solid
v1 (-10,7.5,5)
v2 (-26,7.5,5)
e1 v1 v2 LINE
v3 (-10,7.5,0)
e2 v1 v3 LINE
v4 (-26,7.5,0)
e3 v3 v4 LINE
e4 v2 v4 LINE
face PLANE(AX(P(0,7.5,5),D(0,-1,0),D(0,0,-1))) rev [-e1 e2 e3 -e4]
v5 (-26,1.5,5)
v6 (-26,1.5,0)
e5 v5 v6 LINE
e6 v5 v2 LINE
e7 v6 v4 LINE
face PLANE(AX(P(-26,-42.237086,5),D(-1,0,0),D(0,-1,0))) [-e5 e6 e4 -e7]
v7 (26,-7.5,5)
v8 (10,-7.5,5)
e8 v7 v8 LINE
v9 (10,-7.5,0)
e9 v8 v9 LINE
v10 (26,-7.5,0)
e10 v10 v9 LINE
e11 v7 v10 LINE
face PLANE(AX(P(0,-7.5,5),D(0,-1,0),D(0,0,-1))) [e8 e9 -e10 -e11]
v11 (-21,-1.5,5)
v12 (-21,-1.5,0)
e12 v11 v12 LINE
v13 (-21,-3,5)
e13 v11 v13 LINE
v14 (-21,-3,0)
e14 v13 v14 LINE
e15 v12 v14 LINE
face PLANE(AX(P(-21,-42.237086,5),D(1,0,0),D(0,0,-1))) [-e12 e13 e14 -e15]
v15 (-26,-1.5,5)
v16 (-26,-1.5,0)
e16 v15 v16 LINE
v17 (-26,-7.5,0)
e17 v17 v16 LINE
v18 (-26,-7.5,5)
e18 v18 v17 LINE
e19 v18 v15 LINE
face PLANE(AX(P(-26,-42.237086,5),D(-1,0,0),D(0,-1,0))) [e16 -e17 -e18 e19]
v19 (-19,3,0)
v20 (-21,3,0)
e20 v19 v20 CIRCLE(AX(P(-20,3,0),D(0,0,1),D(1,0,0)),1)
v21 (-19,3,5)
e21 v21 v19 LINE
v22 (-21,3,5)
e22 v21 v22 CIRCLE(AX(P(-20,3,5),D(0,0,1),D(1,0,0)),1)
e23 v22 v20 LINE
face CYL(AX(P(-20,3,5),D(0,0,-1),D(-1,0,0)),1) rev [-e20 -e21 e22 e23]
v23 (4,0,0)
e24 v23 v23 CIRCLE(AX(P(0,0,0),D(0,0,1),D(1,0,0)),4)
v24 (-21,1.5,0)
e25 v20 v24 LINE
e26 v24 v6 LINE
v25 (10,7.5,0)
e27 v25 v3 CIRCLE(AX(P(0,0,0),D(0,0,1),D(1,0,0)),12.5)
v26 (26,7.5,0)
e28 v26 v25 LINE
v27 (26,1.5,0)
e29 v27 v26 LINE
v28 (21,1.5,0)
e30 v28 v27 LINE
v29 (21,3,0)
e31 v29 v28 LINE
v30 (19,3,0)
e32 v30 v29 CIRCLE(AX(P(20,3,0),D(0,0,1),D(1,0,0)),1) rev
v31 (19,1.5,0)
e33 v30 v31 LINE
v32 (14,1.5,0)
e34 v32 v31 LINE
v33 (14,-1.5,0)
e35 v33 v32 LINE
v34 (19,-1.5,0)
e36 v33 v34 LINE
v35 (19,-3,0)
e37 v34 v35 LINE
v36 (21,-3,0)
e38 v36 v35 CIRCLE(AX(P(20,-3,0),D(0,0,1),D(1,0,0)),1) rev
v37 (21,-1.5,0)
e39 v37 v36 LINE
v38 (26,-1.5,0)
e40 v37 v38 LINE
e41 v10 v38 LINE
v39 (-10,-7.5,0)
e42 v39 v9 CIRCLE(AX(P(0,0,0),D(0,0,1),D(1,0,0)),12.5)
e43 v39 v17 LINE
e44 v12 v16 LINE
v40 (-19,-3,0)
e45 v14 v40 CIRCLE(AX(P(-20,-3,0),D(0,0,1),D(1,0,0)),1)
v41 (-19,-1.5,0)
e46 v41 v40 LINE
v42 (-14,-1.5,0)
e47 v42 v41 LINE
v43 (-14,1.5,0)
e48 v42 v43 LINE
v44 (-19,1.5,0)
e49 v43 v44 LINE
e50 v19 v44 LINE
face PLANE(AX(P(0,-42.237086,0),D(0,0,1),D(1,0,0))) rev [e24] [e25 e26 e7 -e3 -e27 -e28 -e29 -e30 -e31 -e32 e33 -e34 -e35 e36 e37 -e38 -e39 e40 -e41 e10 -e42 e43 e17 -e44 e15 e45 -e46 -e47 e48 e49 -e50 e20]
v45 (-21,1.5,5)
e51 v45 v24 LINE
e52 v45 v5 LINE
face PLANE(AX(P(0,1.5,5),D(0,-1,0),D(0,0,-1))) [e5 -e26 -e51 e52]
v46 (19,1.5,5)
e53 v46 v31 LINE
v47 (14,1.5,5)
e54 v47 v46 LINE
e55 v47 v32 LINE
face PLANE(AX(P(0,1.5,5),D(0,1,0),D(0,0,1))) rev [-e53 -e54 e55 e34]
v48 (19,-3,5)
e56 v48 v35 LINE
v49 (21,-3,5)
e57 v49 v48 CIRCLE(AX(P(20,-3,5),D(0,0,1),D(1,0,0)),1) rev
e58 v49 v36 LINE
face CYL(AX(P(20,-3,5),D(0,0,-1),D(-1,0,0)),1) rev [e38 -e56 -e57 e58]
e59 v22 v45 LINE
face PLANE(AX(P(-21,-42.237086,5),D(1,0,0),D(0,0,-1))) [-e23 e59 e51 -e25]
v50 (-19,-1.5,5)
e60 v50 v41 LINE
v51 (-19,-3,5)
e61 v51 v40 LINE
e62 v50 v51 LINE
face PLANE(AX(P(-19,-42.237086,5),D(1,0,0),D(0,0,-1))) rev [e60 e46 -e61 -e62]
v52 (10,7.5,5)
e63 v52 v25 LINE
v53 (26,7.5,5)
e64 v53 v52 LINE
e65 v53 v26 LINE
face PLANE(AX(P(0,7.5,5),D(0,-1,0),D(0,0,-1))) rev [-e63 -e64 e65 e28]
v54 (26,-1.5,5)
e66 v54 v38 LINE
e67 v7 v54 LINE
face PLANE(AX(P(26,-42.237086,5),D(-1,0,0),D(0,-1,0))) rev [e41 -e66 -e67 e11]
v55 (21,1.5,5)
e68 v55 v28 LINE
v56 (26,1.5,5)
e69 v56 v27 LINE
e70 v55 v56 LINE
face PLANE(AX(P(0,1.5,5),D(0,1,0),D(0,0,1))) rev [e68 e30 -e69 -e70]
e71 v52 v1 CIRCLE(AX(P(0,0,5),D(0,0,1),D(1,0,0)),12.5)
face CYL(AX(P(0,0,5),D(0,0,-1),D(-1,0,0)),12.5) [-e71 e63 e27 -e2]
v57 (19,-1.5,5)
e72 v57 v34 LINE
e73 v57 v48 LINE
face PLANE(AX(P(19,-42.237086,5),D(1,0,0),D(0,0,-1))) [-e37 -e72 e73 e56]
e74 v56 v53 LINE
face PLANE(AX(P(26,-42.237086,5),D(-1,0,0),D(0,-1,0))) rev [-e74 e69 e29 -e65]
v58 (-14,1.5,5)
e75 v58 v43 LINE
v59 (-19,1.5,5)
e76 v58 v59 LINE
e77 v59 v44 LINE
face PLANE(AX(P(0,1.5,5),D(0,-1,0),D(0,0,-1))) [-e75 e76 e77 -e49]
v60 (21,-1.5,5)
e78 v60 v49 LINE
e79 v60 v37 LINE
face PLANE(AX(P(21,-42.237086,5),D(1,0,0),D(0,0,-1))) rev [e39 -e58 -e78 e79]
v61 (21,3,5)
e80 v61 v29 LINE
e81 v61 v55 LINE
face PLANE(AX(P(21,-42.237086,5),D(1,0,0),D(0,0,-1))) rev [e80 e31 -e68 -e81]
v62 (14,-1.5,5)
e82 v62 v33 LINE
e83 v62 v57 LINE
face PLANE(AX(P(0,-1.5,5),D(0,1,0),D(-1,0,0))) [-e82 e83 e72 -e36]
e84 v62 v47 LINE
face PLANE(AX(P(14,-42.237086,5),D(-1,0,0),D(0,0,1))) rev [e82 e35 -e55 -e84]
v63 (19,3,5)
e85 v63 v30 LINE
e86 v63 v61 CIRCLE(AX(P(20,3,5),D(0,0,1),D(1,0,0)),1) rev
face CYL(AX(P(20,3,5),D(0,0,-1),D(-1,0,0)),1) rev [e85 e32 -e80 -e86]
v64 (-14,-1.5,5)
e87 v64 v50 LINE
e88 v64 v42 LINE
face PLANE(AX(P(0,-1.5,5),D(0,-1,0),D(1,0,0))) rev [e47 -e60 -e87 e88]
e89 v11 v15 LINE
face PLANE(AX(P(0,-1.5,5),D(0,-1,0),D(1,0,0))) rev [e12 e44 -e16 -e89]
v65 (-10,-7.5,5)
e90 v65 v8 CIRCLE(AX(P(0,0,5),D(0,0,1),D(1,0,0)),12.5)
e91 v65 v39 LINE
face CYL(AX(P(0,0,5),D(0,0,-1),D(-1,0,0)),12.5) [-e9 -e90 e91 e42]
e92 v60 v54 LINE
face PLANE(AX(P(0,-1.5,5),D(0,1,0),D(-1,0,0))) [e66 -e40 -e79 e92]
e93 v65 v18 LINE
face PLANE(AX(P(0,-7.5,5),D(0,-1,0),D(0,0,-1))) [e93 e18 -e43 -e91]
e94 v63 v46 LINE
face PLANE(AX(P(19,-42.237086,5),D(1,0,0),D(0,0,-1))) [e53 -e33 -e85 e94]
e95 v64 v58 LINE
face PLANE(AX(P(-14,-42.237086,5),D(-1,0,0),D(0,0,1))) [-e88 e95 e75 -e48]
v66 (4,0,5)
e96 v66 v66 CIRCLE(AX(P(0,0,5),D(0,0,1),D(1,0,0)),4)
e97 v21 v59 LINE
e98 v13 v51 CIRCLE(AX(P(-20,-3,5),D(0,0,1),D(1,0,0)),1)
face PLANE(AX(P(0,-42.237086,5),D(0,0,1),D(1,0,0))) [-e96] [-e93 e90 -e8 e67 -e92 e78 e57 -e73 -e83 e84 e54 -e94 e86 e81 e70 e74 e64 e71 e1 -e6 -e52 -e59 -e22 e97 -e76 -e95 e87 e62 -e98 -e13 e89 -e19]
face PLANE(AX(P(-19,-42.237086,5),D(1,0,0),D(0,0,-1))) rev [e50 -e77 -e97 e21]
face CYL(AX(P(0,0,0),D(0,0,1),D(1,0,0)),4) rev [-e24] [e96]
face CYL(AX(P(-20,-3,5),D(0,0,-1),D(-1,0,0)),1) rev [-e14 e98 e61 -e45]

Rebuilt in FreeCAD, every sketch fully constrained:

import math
import FreeCAD as App
import Part
import Sketcher

V = App.Vector

doc = App.newDocument("Part")
params = doc.addObject("Spreadsheet::Sheet", "Params")
for row, (alias, value) in enumerate([
    ("sketch1_radius", "1 mm"),
    ("sketch1_radius2", "12.5 mm"),
    ("sketch1_width", "16 mm"),
    ("sketch1_width2", "5 mm"),
    ("sketch1_height", "6 mm"),
    ("pad1_length", "5 mm"),
    ("sketch2_diameter", "8 mm"),
    ("pocket1_length", "5 mm"),
], start=1):
    params.set(f"A{row}", alias)
    params.set(f"B{row}", "=" + value)
    params.setAlias(f"B{row}", alias)

body = doc.addObject("PartDesign::Body", "Body")

sketch1 = body.newObject("Sketcher::SketchObject", "Sketch")
sketch1.AttachmentSupport = (doc.getObject("XY_Plane"), [""])
sketch1.MapMode = "FlatFace"
sketch1.addGeometry([
    Part.ArcOfCircle(Part.Circle(V(0, 0, 0), V(0, 0, 1), 12.5), math.radians(37), math.radians(143)),
    Part.LineSegment(V(-10, 7.5, 0), V(-26, 7.5, 0)),
    Part.LineSegment(V(-26, 7.5, 0), V(-26, 1.5, 0)),
    Part.LineSegment(V(-26, 1.5, 0), V(-21, 1.5, 0)),
    Part.LineSegment(V(-21, 1.5, 0), V(-21, 3, 0)),
    Part.ArcOfCircle(Part.Circle(V(-20, 3, 0), V(0, 0, 1), 1), math.radians(0), math.radians(180)),
    Part.LineSegment(V(-19, 3, 0), V(-19, 1.5, 0)),
    Part.LineSegment(V(-19, 1.5, 0), V(-14, 1.5, 0)),
    Part.LineSegment(V(-14, 1.5, 0), V(-14, -1.5, 0)),
    Part.LineSegment(V(-14, -1.5, 0), V(-19, -1.5, 0)),
    Part.LineSegment(V(-19, -1.5, 0), V(-19, -3, 0)),
    Part.ArcOfCircle(Part.Circle(V(-20, -3, 0), V(0, 0, 1), 1), math.radians(180), math.radians(360)),
    Part.LineSegment(V(-21, -3, 0), V(-21, -1.5, 0)),
    Part.LineSegment(V(-21, -1.5, 0), V(-26, -1.5, 0)),
    Part.LineSegment(V(-26, -1.5, 0), V(-26, -7.5, 0)),
    Part.LineSegment(V(-26, -7.5, 0), V(-10, -7.5, 0)),
    Part.ArcOfCircle(Part.Circle(V(0, 0, 0), V(0, 0, 1), 12.5), math.radians(-143), math.radians(-37)),
    Part.LineSegment(V(10, -7.5, 0), V(26, -7.5, 0)),
    Part.LineSegment(V(26, -7.5, 0), V(26, -1.5, 0)),
    Part.LineSegment(V(26, -1.5, 0), V(21, -1.5, 0)),
    Part.LineSegment(V(21, -1.5, 0), V(21, -3, 0)),
    Part.ArcOfCircle(Part.Circle(V(20, -3, 0), V(0, 0, 1), 1), math.radians(180), math.radians(360)),
    Part.LineSegment(V(19, -3, 0), V(19, -1.5, 0)),
    Part.LineSegment(V(19, -1.5, 0), V(14, -1.5, 0)),
    Part.LineSegment(V(14, -1.5, 0), V(14, 1.5, 0)),
    Part.LineSegment(V(14, 1.5, 0), V(19, 1.5, 0)),
    Part.LineSegment(V(19, 1.5, 0), V(19, 3, 0)),
    Part.ArcOfCircle(Part.Circle(V(20, 3, 0), V(0, 0, 1), 1), math.radians(0), math.radians(180)),
    Part.LineSegment(V(21, 3, 0), V(21, 1.5, 0)),
    Part.LineSegment(V(21, 1.5, 0), V(26, 1.5, 0)),
    Part.LineSegment(V(26, 1.5, 0), V(26, 7.5, 0)),
    Part.LineSegment(V(26, 7.5, 0), V(10, 7.5, 0)),
], False)
sketch1.addConstraint([
    Sketcher.Constraint("Coincident", 0, 2, 1, 1),
    Sketcher.Constraint("Coincident", 1, 2, 2, 1),
    Sketcher.Constraint("Coincident", 2, 2, 3, 1),
    Sketcher.Constraint("Coincident", 3, 2, 4, 1),
    Sketcher.Constraint("Tangent", 4, 2, 5, 2),
    Sketcher.Constraint("Tangent", 5, 1, 6, 1),
    Sketcher.Constraint("Coincident", 6, 2, 7, 1),
    Sketcher.Constraint("Coincident", 7, 2, 8, 1),
    Sketcher.Constraint("Coincident", 8, 2, 9, 1),
    Sketcher.Constraint("Coincident", 9, 2, 10, 1),
    Sketcher.Constraint("Tangent", 10, 2, 11, 2),
    Sketcher.Constraint("Tangent", 11, 1, 12, 1),
    Sketcher.Constraint("Coincident", 12, 2, 13, 1),
    Sketcher.Constraint("Coincident", 13, 2, 14, 1),
    Sketcher.Constraint("Coincident", 14, 2, 15, 1),
    Sketcher.Constraint("Coincident", 15, 2, 16, 1),
    Sketcher.Constraint("Coincident", 16, 2, 17, 1),
    Sketcher.Constraint("Coincident", 17, 2, 18, 1),
    Sketcher.Constraint("Coincident", 18, 2, 19, 1),
    Sketcher.Constraint("Coincident", 19, 2, 20, 1),
    Sketcher.Constraint("Tangent", 20, 2, 21, 2),
    Sketcher.Constraint("Tangent", 21, 1, 22, 1),
    Sketcher.Constraint("Coincident", 22, 2, 23, 1),
    Sketcher.Constraint("Coincident", 23, 2, 24, 1),
    Sketcher.Constraint("Coincident", 24, 2, 25, 1),
    Sketcher.Constraint("Coincident", 25, 2, 26, 1),
    Sketcher.Constraint("Tangent", 26, 2, 27, 2),
    Sketcher.Constraint("Tangent", 27, 1, 28, 1),
    Sketcher.Constraint("Coincident", 28, 2, 29, 1),
    Sketcher.Constraint("Coincident", 29, 2, 30, 1),
    Sketcher.Constraint("Coincident", 30, 2, 31, 1),
    Sketcher.Constraint("Coincident", 31, 2, 0, 1),
    Sketcher.Constraint("Horizontal", 1),
    Sketcher.Constraint("Vertical", 2),
    Sketcher.Constraint("Horizontal", 3),
    Sketcher.Constraint("Vertical", 4),
    Sketcher.Constraint("Vertical", 6),
    Sketcher.Constraint("Horizontal", 7),
    Sketcher.Constraint("Vertical", 8),
    Sketcher.Constraint("Horizontal", 9),
    Sketcher.Constraint("Vertical", 10),
    Sketcher.Constraint("Vertical", 12),
    Sketcher.Constraint("Horizontal", 13),
    Sketcher.Constraint("Vertical", 14),
    Sketcher.Constraint("Horizontal", 15),
    Sketcher.Constraint("Horizontal", 17),
    Sketcher.Constraint("Vertical", 18),
    Sketcher.Constraint("Horizontal", 19),
    Sketcher.Constraint("Vertical", 20),
    Sketcher.Constraint("Vertical", 22),
    Sketcher.Constraint("Horizontal", 23),
    Sketcher.Constraint("Vertical", 24),
    Sketcher.Constraint("Horizontal", 25),
    Sketcher.Constraint("Vertical", 26),
    Sketcher.Constraint("Vertical", 28),
    Sketcher.Constraint("Horizontal", 29),
    Sketcher.Constraint("Vertical", 30),
    Sketcher.Constraint("Horizontal", 31),
    Sketcher.Constraint("Coincident", 0, 3, -1, 1),
    Sketcher.Constraint("Coincident", 16, 3, -1, 1),
    Sketcher.Constraint("Equal", 5, 11),
    Sketcher.Constraint("Equal", 0, 16),
    Sketcher.Constraint("Equal", 11, 21),
    Sketcher.Constraint("Equal", 21, 27),
    Sketcher.Constraint("Symmetric", 5, 3, 21, 3, -1, 1),
    Sketcher.Constraint("Symmetric", 11, 3, 27, 3, -1, 1),
    Sketcher.Constraint("Symmetric", 1, 2, 17, 2, -1, 1),
    Sketcher.Constraint("Symmetric", 7, 2, 23, 2, -1, 1),
    Sketcher.Constraint("Symmetric", 13, 2, 29, 2, -1, 1),
    Sketcher.Constraint("Symmetric", 11, 3, 21, 3, -2),
    Sketcher.Constraint("Symmetric", 14, 2, 17, 2, -2),
    Sketcher.Constraint("Horizontal", 3, 2, 6, 2),
    Sketcher.Constraint("Horizontal", 9, 2, 12, 2),
    Sketcher.Constraint("Horizontal", 13, 2, 18, 2),
    Sketcher.Constraint("Horizontal", 19, 2, 22, 2),
    Sketcher.Constraint("Horizontal", 7, 2, 24, 2),
    Sketcher.Constraint("Horizontal", 1, 2, 30, 2),
    Sketcher.Constraint("Equal", 3, 7),
    Sketcher.Constraint("Radius", 5, 1.0),
    Sketcher.Constraint("Radius", 0, 12.5),
    Sketcher.Constraint("DistanceX", 1, 2, 1, 1, 16.0),
    Sketcher.Constraint("DistanceX", 3, 1, 3, 2, 5.0),
    Sketcher.Constraint("DistanceY", 2, 2, 2, 1, 6.0),
    Sketcher.Constraint("DistanceY", 8, 2, 8, 1, 3.0),
    Sketcher.Constraint("DistanceY", 4, 1, 4, 2, 1.5),
])
sketch1.setExpression("Constraints[78]", "Params.sketch1_radius")
sketch1.setExpression("Constraints[79]", "Params.sketch1_radius2")
sketch1.setExpression("Constraints[80]", "Params.sketch1_width")
sketch1.setExpression("Constraints[81]", "Params.sketch1_width2")
sketch1.setExpression("Constraints[82]", "Params.sketch1_height")
pad1 = body.newObject("PartDesign::Pad", "Pad")
pad1.Profile = sketch1
pad1.setExpression("Length", "Params.pad1_length")

sketch2 = body.newObject("Sketcher::SketchObject", "Sketch001")
sketch2.AttachmentSupport = (doc.getObject("XY_Plane"), [""])
sketch2.MapMode = "FlatFace"
sketch2.AttachmentOffset = App.Placement(V(0, 0, 5), App.Rotation())
sketch2.addGeometry(Part.Circle(V(0, 0, 0), V(0, 0, 1), 4), False)
sketch2.addConstraint([
    Sketcher.Constraint("Coincident", 0, 3, -1, 1),
    Sketcher.Constraint("Diameter", 0, 8.0),
])
sketch2.setExpression("Constraints[1]", "Params.sketch2_diameter")
pocket1 = body.newObject("PartDesign::Pocket", "Pocket")
pocket1.Profile = sketch2
pocket1.setExpression("Length", "Params.pocket1_length")

doc.recompute()
